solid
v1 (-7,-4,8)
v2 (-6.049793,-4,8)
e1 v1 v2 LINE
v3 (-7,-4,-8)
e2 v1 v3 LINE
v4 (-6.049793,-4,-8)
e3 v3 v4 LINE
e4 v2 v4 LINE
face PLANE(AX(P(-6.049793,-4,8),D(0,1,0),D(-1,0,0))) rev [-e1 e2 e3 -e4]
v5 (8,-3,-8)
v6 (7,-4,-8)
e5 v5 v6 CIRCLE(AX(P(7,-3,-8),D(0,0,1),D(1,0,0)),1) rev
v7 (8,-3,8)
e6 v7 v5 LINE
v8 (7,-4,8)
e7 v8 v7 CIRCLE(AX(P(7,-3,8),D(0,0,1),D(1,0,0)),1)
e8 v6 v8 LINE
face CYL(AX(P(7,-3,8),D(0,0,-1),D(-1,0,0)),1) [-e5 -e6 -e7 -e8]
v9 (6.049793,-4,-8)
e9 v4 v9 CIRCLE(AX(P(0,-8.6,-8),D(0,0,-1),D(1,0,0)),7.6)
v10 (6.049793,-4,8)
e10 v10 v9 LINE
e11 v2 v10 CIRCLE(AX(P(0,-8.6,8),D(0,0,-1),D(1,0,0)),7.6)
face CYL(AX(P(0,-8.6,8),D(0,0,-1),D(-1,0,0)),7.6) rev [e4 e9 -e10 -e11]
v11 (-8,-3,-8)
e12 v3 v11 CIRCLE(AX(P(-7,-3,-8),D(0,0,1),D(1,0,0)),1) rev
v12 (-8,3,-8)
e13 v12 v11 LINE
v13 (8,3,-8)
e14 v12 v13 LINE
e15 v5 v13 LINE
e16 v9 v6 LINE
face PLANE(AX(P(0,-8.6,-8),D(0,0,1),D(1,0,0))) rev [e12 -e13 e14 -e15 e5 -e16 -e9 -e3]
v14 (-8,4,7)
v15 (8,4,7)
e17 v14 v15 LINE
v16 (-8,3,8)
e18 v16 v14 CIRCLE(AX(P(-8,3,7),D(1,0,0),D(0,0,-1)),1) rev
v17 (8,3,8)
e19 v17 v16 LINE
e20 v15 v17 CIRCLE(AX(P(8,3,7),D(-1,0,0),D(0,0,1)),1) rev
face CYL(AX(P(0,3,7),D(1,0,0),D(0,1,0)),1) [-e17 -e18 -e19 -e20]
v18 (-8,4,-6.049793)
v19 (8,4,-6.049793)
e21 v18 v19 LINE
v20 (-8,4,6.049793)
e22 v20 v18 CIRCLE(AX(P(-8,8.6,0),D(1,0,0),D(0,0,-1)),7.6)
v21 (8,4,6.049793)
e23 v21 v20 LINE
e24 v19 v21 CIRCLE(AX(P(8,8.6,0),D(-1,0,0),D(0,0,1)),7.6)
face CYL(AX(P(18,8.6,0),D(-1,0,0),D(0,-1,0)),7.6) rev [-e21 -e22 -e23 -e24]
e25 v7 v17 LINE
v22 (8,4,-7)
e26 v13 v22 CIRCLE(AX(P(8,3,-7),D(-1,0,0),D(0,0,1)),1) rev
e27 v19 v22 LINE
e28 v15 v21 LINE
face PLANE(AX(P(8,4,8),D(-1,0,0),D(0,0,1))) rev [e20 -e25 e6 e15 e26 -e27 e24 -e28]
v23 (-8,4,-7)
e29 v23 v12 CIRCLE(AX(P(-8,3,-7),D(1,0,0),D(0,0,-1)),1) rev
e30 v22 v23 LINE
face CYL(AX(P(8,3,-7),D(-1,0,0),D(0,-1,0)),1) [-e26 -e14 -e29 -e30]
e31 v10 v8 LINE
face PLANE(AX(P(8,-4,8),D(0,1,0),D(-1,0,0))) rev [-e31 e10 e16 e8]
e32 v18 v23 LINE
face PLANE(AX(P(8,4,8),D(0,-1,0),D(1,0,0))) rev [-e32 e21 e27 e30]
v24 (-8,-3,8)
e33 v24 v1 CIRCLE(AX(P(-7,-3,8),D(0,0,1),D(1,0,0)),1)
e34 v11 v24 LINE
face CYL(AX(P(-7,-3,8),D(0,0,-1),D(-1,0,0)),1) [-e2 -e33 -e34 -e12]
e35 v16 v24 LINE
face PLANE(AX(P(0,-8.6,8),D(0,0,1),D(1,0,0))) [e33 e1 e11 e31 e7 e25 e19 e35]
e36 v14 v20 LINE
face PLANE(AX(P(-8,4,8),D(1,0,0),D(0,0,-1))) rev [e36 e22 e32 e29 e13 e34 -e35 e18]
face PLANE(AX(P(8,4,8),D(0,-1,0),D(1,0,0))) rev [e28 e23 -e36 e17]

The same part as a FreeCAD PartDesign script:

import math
import FreeCAD as App
import Part
import Sketcher
from FreeCAD import Vector
Q = App.Units.Quantity


def edges_at(feature, points):
    """Names of the edges that pass closest to the given points."""
    edges = feature.Shape.Edges
    near = lambda p: min(range(len(edges)), key=lambda i: edges[i].distToShape(Part.Vertex(*p))[0])
    return sorted({f"Edge{near(p) + 1}" for p in points})

doc = App.newDocument("Part")
params = doc.addObject("Spreadsheet::Sheet", "Params")
for row, (alias, value) in enumerate([
    ("sketch1_radius", "7.6 mm"),
    ("sketch1_width", "16 mm"),
    ("sketch1_height", "8 mm"),
    ("pad1_length", "16 mm"),
    ("sketch2_diameter", "15.2 mm"),
    ("pocket1_length", "26 mm"),
    ("fillet_radius", "1 mm"),
], start=1):
    params.set(f"A{row}", alias)
    params.set(f"B{row}", "=" + value)
    params.setAlias(f"B{row}", alias)

body = doc.addObject("PartDesign::Body", "Body")

# Sketch on XY plane
sketch1 = body.newObject("Sketcher::SketchObject", "Sketch")
sketch1.AttachmentSupport = (doc.getObject("XY_Plane"), [""])
sketch1.MapMode = "FlatFace"
sketch1.addGeometry(Part.LineSegment(Vector(8, 4, 0), Vector(-8, 4, 0)), False)
sketch1.addGeometry(Part.LineSegment(Vector(-8, 4, 0), Vector(-8, -4, 0)), False)
sketch1.addGeometry(Part.LineSegment(Vector(-8, -4, 0), Vector(-6.049793, -4, 0)), False)
sketch1.addGeometry(Part.ArcOfCircle(Part.Circle(Vector(0, -8.6, 0), Vector(0, 0, 1), 7.6), math.radians(37.247781), math.radians(142.752219)), False)
sketch1.addGeometry(Part.LineSegment(Vector(6.049793, -4, 0), Vector(8, -4, 0)), False)
sketch1.addGeometry(Part.LineSegment(Vector(8, -4, 0), Vector(8, 4, 0)), False)
sketch1.addConstraint(Sketcher.Constraint("Coincident", 0, 2, 1, 1))
sketch1.addConstraint(Sketcher.Constraint("Coincident", 1, 2, 2, 1))
sketch1.addConstraint(Sketcher.Constraint("Coincident", 2, 2, 3, 2))
sketch1.addConstraint(Sketcher.Constraint("Coincident", 3, 1, 4, 1))
sketch1.addConstraint(Sketcher.Constraint("Coincident", 4, 2, 5, 1))
sketch1.addConstraint(Sketcher.Constraint("Coincident", 5, 2, 0, 1))
sketch1.addConstraint(Sketcher.Constraint("Horizontal", 0))
sketch1.addConstraint(Sketcher.Constraint("Vertical", 1))
sketch1.addConstraint(Sketcher.Constraint("Horizontal", 2))
sketch1.addConstraint(Sketcher.Constraint("Horizontal", 4))
sketch1.addConstraint(Sketcher.Constraint("Vertical", 5))
sketch1.addConstraint(Sketcher.Constraint("Symmetric", 0, 2, 4, 2, -1, 1))
sketch1.addConstraint(Sketcher.Constraint("Symmetric", 2, 2, 3, 1, -2))
sketch1.addConstraint(Sketcher.Constraint("Radius", 3, Q("7.6 mm")))
sketch1.addConstraint(Sketcher.Constraint("DistanceX", 0, 2, 0, 1, Q("16 mm")))
sketch1.addConstraint(Sketcher.Constraint("DistanceY", 1, 2, 1, 1, Q("8 mm")))
sketch1.addConstraint(Sketcher.Constraint("DistanceY", 3, 3, -1, 1, Q("8.6 mm")))
sketch1.setExpression("Constraints[13]", "Params.sketch1_radius")
sketch1.setExpression("Constraints[14]", "Params.sketch1_width")
sketch1.setExpression("Constraints[15]", "Params.sketch1_height")
pad1 = body.newObject("PartDesign::Pad", "Pad")
pad1.Profile = sketch1
pad1.setExpression("Length", "Params.pad1_length")
pad1.Midplane = True

# Sketch on YZ plane
sketch2 = body.newObject("Sketcher::SketchObject", "Sketch001")
sketch2.AttachmentSupport = (doc.getObject("YZ_Plane"), [""])
sketch2.MapMode = "FlatFace"
sketch2.AttachmentOffset = App.Placement(Vector(0, 0, -8), App.Rotation())
sketch2.addGeometry(Part.Circle(Vector(8.6, 0, 0), Vector(0, 0, 1), 7.6), False)
sketch2.addConstraint(Sketcher.Constraint("PointOnObject", 0, 3, -1))
sketch2.addConstraint(Sketcher.Constraint("Diameter", 0, Q("15.2 mm")))
sketch2.addConstraint(Sketcher.Constraint("DistanceX", -1, 1, 0, 3, Q("8.6 mm")))
sketch2.setExpression("Constraints[1]", "Params.sketch2_diameter")
pocket1 = body.newObject("PartDesign::Pocket", "Pocket")
pocket1.Profile = sketch2
pocket1.setExpression("Length", "Params.pocket1_length")
pocket1.Reversed = True
doc.recompute()

fillet = body.newObject("PartDesign::Fillet", "Fillet")
fillet.Base = (pocket1, edges_at(pocket1, [
    (8, -4, 0),
    (-8, -4, 0),
    (0, 4, -8),
    (0, 4, 8),
]))
fillet.setExpression("Radius", "Params.fillet_radius")

doc.recompute()
